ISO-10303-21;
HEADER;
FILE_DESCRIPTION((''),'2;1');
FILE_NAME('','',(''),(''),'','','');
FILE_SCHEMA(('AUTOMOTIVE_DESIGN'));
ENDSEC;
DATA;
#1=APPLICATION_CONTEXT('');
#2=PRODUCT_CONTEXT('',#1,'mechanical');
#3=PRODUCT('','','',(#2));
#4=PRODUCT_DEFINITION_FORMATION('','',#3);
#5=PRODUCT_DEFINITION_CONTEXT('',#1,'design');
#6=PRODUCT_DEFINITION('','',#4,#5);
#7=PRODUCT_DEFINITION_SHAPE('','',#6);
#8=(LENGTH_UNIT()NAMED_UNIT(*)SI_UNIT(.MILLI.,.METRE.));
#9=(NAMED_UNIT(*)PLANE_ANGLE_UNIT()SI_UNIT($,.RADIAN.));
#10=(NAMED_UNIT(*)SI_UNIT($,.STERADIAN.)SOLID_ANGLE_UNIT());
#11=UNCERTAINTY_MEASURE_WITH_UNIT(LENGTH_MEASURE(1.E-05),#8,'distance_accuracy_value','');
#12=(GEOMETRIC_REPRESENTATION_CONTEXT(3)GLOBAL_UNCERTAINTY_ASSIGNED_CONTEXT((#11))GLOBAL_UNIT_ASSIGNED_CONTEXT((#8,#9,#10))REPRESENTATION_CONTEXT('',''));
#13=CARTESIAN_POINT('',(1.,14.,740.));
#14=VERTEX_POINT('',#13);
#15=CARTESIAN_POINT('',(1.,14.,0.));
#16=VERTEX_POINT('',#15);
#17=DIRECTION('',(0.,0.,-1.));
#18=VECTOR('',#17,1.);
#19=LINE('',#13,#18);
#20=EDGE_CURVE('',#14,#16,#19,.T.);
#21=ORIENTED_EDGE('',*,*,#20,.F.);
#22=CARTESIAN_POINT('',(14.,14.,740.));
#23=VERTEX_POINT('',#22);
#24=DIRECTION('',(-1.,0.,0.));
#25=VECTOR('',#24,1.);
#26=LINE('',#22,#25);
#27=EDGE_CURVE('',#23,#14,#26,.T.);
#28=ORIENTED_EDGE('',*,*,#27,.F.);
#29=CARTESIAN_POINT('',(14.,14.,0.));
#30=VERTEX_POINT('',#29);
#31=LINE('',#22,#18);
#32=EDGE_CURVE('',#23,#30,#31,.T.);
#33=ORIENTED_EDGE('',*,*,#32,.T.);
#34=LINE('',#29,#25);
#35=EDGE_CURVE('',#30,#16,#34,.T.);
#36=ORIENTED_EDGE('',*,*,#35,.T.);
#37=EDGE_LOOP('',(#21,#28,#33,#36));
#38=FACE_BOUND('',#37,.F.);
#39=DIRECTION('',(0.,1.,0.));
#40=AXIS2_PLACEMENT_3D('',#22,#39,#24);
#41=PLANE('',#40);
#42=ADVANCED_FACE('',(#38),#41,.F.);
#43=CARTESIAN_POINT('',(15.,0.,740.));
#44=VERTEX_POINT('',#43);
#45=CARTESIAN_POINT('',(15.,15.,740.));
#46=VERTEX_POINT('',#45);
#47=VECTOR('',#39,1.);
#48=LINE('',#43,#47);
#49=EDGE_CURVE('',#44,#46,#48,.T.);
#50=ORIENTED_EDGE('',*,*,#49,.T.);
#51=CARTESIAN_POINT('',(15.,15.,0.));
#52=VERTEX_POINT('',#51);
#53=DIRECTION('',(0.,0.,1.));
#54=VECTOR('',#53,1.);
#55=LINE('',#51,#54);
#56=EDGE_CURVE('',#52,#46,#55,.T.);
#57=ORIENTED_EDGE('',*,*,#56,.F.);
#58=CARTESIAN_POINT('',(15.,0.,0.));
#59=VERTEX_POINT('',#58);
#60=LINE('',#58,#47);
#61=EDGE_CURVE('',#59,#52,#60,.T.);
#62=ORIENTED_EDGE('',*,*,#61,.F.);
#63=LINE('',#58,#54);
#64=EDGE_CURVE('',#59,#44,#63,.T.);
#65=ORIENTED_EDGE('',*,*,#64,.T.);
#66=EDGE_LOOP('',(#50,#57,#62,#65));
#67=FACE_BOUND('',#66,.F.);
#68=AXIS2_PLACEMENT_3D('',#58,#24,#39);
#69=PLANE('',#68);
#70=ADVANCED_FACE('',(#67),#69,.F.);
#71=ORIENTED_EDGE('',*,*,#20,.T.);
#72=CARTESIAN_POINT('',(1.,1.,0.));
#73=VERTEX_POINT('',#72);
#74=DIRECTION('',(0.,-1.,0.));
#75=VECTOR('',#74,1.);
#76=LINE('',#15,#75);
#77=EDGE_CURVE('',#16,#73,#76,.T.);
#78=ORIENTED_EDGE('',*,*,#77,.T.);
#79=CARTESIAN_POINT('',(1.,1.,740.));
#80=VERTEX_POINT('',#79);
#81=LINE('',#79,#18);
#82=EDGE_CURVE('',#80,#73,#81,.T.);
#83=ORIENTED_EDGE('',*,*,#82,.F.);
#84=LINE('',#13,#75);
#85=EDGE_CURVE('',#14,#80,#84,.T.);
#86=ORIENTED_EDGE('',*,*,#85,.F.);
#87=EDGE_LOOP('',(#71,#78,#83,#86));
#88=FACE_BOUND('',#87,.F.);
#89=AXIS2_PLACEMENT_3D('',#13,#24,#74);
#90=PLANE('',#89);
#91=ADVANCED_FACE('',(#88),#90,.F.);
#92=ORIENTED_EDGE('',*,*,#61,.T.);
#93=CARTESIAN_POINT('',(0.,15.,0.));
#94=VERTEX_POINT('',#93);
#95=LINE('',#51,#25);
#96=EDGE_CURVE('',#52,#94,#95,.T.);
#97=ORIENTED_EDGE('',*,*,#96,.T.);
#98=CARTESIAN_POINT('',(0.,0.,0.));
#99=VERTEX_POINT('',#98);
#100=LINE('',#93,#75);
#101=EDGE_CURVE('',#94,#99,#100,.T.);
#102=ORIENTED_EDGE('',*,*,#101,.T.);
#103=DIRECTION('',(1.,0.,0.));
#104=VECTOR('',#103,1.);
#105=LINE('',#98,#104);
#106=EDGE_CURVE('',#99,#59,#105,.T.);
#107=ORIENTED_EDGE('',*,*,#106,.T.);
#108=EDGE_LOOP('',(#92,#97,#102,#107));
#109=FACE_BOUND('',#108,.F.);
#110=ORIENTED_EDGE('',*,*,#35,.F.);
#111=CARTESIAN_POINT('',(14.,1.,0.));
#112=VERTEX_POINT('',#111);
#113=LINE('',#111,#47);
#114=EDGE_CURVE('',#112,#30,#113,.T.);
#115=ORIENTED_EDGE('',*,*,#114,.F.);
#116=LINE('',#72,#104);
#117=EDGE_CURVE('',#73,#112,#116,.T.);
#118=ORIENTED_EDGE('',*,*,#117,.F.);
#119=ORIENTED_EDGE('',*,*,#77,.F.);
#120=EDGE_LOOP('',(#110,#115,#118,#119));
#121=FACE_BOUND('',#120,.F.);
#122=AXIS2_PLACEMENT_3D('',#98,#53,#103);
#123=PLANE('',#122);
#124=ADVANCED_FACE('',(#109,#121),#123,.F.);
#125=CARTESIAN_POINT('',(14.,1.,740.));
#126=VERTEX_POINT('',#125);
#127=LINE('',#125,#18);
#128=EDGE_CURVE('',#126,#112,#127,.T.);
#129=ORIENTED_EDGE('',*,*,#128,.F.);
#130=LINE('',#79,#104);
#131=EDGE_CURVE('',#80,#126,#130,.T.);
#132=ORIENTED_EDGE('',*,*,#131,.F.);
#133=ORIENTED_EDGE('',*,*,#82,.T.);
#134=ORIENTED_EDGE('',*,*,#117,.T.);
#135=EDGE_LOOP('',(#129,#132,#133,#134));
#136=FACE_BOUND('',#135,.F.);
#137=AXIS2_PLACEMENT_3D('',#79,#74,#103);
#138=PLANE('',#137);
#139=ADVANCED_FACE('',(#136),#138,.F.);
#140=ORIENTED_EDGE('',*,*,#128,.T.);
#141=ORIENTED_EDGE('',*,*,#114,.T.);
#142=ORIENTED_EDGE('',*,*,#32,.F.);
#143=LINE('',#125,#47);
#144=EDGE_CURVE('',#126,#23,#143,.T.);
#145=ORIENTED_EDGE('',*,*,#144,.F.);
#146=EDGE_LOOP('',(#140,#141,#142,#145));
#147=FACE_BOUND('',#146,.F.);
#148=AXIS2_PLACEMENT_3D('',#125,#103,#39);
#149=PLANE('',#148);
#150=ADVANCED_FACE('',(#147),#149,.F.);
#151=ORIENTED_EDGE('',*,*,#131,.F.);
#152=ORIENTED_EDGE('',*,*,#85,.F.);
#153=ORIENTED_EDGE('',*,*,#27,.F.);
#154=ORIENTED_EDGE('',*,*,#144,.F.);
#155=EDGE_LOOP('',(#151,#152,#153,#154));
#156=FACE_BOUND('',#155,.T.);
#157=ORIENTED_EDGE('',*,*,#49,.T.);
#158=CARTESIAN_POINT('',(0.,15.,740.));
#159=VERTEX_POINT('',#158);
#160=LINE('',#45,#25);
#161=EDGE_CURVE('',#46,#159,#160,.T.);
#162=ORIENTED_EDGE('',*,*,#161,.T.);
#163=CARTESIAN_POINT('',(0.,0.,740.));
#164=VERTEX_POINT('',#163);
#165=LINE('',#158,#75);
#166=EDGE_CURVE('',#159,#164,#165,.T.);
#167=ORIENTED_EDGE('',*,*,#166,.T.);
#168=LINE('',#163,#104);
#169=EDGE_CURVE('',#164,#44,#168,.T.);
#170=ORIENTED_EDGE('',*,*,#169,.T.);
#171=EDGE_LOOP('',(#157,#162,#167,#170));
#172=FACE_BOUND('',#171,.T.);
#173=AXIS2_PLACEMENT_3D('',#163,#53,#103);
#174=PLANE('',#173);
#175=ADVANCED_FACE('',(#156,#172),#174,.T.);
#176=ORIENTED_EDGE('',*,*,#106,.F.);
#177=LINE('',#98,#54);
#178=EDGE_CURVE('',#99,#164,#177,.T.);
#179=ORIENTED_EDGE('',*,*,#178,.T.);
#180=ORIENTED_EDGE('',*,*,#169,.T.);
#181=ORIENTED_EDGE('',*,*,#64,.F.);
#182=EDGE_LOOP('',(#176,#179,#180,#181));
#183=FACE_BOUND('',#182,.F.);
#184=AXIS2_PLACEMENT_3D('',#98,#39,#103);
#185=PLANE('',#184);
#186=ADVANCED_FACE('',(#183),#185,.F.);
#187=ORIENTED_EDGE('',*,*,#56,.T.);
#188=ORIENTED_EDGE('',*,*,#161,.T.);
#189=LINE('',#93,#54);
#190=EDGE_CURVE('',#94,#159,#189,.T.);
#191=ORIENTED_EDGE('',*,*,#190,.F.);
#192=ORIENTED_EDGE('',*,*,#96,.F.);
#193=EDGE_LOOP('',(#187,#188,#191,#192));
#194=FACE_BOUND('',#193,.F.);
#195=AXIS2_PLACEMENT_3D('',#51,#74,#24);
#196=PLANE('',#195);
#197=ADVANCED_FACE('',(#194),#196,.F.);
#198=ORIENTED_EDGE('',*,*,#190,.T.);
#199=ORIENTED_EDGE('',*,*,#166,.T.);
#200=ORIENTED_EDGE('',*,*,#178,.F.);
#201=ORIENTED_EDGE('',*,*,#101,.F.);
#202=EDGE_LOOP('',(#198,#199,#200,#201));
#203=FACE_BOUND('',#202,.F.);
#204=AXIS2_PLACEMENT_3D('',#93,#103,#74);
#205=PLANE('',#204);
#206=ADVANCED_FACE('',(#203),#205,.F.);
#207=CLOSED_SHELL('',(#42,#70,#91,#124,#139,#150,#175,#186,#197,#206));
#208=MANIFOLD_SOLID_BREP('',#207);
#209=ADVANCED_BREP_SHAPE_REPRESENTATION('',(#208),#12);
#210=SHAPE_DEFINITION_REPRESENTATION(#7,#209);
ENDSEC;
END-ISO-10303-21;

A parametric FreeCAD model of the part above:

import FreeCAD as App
import Part
import Sketcher
from FreeCAD import Vector


def add_polygon(sketch, points):
    """Adds a closed chain of lines whose ends are joined by coincident constraints."""
    first, n = sketch.GeometryCount, len(points)
    for a, b in zip(points, points[1:] + points[:1]):
        sketch.addGeometry(Part.LineSegment(App.Vector(*a, 0), App.Vector(*b, 0)), False)
    for i in range(n):
        sketch.addConstraint(Sketcher.Constraint("Coincident", first + i, 2, first + (i + 1) % n, 1))

doc = App.newDocument("Part")
body = doc.addObject("PartDesign::Body", "Body")

# Sketch on XY plane
sketch1 = doc.addObject("Sketcher::SketchObject", "Sketch")
body.addObject(sketch1)
sketch1.AttachmentSupport = (doc.XY_Plane, [""])
sketch1.MapMode = "FlatFace"
add_polygon(sketch1, [(0, 15), (0, 0), (15, 0), (15, 15)])  # lines 0-3
sketch1.addConstraint(Sketcher.Constraint("Vertical", 0))
sketch1.addConstraint(Sketcher.Constraint("Horizontal", 1))
sketch1.addConstraint(Sketcher.Constraint("Vertical", 2))
sketch1.addConstraint(Sketcher.Constraint("Horizontal", 3))
sketch1.addConstraint(Sketcher.Constraint("Coincident", 0, 2, -1, 1))
sketch1.addConstraint(Sketcher.Constraint("Equal", 3, 0))
sketch1.addConstraint(Sketcher.Constraint("DistanceX", 1, 1, 1, 2, 15.0))
pad1 = doc.addObject("PartDesign::Pad", "Pad")
body.addObject(pad1)
pad1.Profile = sketch1
pad1.Length = 740

# Sketch on XY plane
sketch2 = doc.addObject("Sketcher::SketchObject", "Sketch001")
body.addObject(sketch2)
sketch2.AttachmentSupport = (doc.XY_Plane, [""])
sketch2.MapMode = "FlatFace"
sketch2.AttachmentOffset = App.Placement(Vector(0, 0, 740), App.Rotation())
add_polygon(sketch2, [(1, 14), (1, 1), (14, 1), (14, 14)])  # lines 0-3
sketch2.addConstraint(Sketcher.Constraint("Vertical", 0))
sketch2.addConstraint(Sketcher.Constraint("Horizontal", 1))
sketch2.addConstraint(Sketcher.Constraint("Vertical", 2))
sketch2.addConstraint(Sketcher.Constraint("Horizontal", 3))
sketch2.addConstraint(Sketcher.Constraint("Equal", 3, 0))
sketch2.addConstraint(Sketcher.Constraint("DistanceX", 1, 1, 1, 2, 13.0))
sketch2.addConstraint(Sketcher.Constraint("DistanceX", -1, 1, 0, 2, 1.0))
sketch2.addConstraint(Sketcher.Constraint("DistanceY", -1, 1, 0, 2, 1.0))
pocket1 = doc.addObject("PartDesign::Pocket", "Pocket")
body.addObject(pocket1)
pocket1.Profile = sketch2
pocket1.Length = 740

doc.recompute()
